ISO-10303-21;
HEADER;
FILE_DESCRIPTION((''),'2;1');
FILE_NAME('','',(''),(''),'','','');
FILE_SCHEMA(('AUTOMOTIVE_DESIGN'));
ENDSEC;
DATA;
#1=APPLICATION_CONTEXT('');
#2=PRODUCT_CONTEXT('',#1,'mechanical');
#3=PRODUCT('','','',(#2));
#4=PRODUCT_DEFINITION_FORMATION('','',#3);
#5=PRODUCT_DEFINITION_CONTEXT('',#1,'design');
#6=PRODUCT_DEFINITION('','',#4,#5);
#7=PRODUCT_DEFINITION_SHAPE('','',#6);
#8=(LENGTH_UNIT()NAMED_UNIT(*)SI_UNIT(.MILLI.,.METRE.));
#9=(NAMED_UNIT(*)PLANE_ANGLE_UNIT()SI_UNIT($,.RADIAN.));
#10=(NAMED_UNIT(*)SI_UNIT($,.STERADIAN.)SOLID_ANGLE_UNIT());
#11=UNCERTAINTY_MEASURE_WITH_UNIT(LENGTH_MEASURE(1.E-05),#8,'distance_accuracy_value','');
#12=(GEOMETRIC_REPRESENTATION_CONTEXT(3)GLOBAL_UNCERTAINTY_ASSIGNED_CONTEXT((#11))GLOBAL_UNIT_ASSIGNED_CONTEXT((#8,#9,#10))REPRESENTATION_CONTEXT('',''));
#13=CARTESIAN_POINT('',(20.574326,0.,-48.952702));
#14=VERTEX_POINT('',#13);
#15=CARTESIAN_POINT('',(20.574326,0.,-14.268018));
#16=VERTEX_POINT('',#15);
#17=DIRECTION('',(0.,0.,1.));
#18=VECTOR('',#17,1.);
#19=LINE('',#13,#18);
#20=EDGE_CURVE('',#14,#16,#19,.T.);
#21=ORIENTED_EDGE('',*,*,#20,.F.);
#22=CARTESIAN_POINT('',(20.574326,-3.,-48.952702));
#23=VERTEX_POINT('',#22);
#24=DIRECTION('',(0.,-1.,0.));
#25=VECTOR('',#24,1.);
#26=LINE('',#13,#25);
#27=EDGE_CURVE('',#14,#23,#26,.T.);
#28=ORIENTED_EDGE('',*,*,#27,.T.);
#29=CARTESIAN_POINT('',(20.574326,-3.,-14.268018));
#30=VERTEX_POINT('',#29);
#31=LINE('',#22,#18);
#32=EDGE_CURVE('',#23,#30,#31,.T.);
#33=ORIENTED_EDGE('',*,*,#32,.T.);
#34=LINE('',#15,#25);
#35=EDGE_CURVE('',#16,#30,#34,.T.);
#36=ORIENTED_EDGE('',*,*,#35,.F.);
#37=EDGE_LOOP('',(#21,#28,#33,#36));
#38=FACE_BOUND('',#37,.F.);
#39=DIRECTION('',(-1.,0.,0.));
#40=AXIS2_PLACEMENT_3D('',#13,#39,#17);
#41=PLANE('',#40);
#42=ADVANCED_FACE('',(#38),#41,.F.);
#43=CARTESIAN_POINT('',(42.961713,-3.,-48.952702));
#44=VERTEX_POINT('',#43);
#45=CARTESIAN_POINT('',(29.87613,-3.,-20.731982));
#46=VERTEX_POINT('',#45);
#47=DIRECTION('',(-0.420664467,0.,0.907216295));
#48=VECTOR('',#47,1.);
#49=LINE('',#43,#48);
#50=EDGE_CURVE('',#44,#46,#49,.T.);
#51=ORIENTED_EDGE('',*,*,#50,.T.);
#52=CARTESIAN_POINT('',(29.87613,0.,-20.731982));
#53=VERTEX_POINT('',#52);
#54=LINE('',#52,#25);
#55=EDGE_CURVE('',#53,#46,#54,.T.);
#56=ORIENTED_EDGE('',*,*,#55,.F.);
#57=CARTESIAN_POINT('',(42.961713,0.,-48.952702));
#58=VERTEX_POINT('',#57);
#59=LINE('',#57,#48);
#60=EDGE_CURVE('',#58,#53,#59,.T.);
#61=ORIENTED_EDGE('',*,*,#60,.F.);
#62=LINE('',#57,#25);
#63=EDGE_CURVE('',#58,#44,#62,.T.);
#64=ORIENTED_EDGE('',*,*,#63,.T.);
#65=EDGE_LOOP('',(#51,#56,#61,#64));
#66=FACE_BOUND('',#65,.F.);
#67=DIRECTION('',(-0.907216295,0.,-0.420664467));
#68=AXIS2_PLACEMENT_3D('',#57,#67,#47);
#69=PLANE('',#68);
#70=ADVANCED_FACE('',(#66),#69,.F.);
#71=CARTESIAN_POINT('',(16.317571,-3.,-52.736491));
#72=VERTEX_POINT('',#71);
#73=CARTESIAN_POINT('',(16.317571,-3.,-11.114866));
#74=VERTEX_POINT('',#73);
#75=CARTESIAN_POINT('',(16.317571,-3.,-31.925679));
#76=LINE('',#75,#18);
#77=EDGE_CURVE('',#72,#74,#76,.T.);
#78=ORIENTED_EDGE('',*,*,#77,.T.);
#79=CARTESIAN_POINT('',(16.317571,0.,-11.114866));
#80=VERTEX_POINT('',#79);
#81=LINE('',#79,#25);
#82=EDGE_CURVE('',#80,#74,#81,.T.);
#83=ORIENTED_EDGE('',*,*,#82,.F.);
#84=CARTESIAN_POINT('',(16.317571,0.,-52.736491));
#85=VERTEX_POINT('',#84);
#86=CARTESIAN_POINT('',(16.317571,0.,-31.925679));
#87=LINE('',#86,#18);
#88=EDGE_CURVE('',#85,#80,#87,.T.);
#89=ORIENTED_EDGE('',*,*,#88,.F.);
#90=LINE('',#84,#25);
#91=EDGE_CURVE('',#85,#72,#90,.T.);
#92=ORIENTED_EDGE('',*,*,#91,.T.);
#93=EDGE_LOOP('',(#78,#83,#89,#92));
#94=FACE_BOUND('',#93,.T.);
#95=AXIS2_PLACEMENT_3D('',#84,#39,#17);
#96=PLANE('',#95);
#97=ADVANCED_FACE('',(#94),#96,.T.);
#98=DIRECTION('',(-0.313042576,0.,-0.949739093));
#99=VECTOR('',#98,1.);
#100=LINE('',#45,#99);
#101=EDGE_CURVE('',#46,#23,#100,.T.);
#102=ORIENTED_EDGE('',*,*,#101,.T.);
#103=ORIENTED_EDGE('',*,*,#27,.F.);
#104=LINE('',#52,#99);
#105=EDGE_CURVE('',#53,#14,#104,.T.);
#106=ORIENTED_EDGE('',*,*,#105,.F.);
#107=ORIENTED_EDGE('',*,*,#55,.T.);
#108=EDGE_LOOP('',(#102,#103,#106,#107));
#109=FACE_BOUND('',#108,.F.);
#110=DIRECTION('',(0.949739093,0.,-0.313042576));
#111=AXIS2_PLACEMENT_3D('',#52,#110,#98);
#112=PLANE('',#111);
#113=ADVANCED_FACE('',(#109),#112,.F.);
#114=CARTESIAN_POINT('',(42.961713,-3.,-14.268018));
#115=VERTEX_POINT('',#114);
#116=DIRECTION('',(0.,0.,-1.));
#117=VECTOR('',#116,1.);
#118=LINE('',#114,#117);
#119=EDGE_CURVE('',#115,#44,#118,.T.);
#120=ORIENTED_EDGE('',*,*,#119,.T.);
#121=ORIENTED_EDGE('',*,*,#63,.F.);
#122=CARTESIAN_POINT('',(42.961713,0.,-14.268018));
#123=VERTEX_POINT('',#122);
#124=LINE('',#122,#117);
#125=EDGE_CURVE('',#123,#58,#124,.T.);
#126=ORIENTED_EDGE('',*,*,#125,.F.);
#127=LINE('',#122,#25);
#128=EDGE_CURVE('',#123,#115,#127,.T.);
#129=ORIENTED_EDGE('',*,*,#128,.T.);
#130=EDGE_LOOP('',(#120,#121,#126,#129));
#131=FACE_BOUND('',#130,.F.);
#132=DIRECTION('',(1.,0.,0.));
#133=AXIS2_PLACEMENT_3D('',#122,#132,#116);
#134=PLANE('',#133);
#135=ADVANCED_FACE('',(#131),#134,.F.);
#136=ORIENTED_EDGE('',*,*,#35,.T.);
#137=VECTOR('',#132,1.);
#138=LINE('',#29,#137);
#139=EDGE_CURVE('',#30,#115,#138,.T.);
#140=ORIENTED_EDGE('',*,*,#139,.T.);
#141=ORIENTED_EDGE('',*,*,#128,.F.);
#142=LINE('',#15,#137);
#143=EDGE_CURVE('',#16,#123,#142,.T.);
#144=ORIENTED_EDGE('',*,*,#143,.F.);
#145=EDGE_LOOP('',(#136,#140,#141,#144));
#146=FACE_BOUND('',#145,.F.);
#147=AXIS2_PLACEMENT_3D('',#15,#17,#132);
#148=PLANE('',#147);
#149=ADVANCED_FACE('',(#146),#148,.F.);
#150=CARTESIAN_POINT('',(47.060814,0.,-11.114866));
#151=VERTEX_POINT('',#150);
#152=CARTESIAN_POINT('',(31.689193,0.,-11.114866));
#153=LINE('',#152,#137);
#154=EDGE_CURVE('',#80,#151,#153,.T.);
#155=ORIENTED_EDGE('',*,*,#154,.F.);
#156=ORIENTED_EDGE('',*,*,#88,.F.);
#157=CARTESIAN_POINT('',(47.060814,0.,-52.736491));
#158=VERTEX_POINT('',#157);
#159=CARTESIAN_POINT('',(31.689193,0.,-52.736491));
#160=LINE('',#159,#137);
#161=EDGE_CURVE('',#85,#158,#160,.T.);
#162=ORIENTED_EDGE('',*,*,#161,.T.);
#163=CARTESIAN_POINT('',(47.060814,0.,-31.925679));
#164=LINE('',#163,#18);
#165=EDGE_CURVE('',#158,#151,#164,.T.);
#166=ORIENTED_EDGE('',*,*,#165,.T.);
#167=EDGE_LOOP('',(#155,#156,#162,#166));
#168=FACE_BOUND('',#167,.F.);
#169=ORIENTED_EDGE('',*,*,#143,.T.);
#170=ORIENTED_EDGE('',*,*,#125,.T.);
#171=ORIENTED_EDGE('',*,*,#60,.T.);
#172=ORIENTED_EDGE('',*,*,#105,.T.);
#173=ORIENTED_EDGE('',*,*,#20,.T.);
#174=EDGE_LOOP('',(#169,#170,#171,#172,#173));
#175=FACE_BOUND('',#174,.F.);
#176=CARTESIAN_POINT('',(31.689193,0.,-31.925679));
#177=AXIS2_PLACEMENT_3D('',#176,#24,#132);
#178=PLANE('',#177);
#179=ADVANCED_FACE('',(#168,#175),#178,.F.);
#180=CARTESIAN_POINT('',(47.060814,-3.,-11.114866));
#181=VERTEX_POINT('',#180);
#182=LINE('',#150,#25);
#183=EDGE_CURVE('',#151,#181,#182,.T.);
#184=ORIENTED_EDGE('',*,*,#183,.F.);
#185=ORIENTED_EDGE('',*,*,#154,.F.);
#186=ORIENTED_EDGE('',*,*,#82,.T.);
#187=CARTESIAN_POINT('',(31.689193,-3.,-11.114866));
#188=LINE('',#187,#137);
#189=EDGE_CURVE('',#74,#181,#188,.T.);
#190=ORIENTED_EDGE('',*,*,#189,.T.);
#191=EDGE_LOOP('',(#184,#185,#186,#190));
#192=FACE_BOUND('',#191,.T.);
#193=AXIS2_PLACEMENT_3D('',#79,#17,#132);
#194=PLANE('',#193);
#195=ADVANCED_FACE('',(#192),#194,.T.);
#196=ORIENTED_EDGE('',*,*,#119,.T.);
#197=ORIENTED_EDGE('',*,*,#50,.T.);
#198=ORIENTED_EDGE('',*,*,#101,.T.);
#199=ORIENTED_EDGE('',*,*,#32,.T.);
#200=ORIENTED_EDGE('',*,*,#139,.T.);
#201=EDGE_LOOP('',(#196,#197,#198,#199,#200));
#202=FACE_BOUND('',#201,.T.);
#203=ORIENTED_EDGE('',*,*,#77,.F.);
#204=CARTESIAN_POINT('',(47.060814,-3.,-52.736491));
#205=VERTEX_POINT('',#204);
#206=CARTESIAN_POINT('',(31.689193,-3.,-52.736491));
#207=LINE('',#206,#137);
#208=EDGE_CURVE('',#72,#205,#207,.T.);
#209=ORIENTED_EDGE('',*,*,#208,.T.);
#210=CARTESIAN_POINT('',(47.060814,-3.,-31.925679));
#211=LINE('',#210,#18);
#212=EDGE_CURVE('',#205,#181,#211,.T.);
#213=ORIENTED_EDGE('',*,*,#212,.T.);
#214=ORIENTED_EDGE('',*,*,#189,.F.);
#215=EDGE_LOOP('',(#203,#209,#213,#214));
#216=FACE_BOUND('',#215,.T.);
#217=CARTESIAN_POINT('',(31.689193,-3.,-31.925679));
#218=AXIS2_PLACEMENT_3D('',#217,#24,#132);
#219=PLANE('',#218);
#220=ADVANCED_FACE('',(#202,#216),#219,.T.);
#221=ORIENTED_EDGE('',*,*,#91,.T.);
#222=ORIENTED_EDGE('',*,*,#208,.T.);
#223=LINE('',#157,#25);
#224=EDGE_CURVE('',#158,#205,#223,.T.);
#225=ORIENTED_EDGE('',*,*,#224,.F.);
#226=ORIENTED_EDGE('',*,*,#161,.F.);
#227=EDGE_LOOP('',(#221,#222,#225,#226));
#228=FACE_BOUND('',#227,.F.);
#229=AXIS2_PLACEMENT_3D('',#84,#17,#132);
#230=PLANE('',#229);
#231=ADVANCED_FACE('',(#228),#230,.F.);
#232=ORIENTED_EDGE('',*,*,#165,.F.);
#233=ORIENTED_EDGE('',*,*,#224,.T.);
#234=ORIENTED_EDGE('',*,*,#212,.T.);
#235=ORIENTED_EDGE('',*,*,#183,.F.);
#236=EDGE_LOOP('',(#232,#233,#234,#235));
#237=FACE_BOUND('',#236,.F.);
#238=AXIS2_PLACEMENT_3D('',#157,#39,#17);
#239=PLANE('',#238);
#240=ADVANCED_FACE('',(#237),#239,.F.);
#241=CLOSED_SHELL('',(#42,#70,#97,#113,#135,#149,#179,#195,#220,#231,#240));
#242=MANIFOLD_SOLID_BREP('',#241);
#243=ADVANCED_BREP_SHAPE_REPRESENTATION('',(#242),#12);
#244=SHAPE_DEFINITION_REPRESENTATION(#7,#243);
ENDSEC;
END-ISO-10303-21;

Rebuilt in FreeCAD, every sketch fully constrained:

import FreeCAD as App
import Part
import Sketcher

V = App.Vector

doc = App.newDocument("Part")
body = doc.addObject("PartDesign::Body", "Body")

sketch1 = body.newObject("Sketcher::SketchObject", "Sketch")
sketch1.AttachmentSupport = (doc.getObject("XZ_Plane"), [""])
sketch1.MapMode = "FlatFace"
sketch1.addGeometry([
    Part.LineSegment(V(16, -11, 0), V(16, -53, 0)),
    Part.LineSegment(V(16, -53, 0), V(47, -53, 0)),
    Part.LineSegment(V(47, -53, 0), V(47, -11, 0)),
    Part.LineSegment(V(47, -11, 0), V(16, -11, 0)),
    Part.LineSegment(V(30, -21, 0), V(21, -49, 0)),
    Part.LineSegment(V(21, -49, 0), V(21, -14, 0)),
    Part.LineSegment(V(21, -14, 0), V(43, -14, 0)),
    Part.LineSegment(V(43, -14, 0), V(43, -49, 0)),
    Part.LineSegment(V(43, -49, 0), V(30, -21, 0)),
], False)
sketch1.addConstraint([
    Sketcher.Constraint("Coincident", 0, 2, 1, 1),
    Sketcher.Constraint("Coincident", 1, 2, 2, 1),
    Sketcher.Constraint("Coincident", 2, 2, 3, 1),
    Sketcher.Constraint("Coincident", 3, 2, 0, 1),
    Sketcher.Constraint("Coincident", 4, 2, 5, 1),
    Sketcher.Constraint("Coincident", 5, 2, 6, 1),
    Sketcher.Constraint("Coincident", 6, 2, 7, 1),
    Sketcher.Constraint("Coincident", 7, 2, 8, 1),
    Sketcher.Constraint("Coincident", 8, 2, 4, 1),
    Sketcher.Constraint("Vertical", 0),
    Sketcher.Constraint("Horizontal", 1),
    Sketcher.Constraint("Vertical", 2),
    Sketcher.Constraint("Horizontal", 3),
    Sketcher.Constraint("Vertical", 5),
    Sketcher.Constraint("Horizontal", 6),
    Sketcher.Constraint("Vertical", 7),
    Sketcher.Constraint("Horizontal", 4, 2, 7, 2),
    Sketcher.Constraint("DistanceX", 6, 2, 2, 2, 4.099101),
    Sketcher.Constraint("Distance", 4, 29.714182),
    Sketcher.Constraint("DistanceX", 1, 1, 1, 2, 30.743243),
    Sketcher.Constraint("DistanceX", 6, 1, 6, 2, 22.387387),
    Sketcher.Constraint("DistanceY", 0, 2, 0, 1, 41.621625),
    Sketcher.Constraint("DistanceY", 5, 1, 5, 2, 34.684684),
    Sketcher.Constraint("DistanceX", -1, 1, 0, 2, 16.317571),
    Sketcher.Constraint("DistanceY", 0, 2, -1, 1, 52.736491),
    Sketcher.Constraint("DistanceX", -1, 1, 8, 2, 29.87613),
    Sketcher.Constraint("DistanceY", 8, 2, -1, 1, 20.731982),
])
pad1 = body.newObject("PartDesign::Pad", "Pad")
pad1.Profile = sketch1
pad1.Length = 3

doc.recompute()
